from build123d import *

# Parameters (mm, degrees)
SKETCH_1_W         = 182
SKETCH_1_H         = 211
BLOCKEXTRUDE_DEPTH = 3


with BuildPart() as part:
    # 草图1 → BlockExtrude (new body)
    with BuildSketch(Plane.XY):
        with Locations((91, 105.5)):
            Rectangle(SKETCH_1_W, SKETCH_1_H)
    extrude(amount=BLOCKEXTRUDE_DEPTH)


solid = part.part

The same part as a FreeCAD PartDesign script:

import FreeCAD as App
import Part
import Sketcher

doc = App.newDocument("Part")
body = doc.addObject("PartDesign::Body", "Body")

sketch1 = body.newObject("Sketcher::SketchObject", "Sketch")
sketch1.AttachmentSupport = (doc.getObject("XY_Plane"), [""])
sketch1.MapMode = "FlatFace"
sketch1.addGeometry(Part.LineSegment(App.Vector(0, 211, 0), App.Vector(0, 0, 0)), False)
sketch1.addGeometry(Part.LineSegment(App.Vector(0, 0, 0), App.Vector(182, 0, 0)), False)
sketch1.addGeometry(Part.LineSegment(App.Vector(182, 0, 0), App.Vector(182, 211, 0)), False)
sketch1.addGeometry(Part.LineSegment(App.Vector(182, 211, 0), App.Vector(0, 211, 0)), False)
sketch1.addConstraint(Sketcher.Constraint("Coincident", 0, 2, 1, 1))
sketch1.addConstraint(Sketcher.Constraint("Coincident", 1, 2, 2, 1))
sketch1.addConstraint(Sketcher.Constraint("Coincident", 2, 2, 3, 1))
sketch1.addConstraint(Sketcher.Constraint("Coincident", 3, 2, 0, 1))
sketch1.addConstraint(Sketcher.Constraint("Vertical", 0))
sketch1.addConstraint(Sketcher.Constraint("Horizontal", 1))
sketch1.addConstraint(Sketcher.Constraint("Vertical", 2))
sketch1.addConstraint(Sketcher.Constraint("Horizontal", 3))
sketch1.addConstraint(Sketcher.Constraint("Coincident", 0, 2, -1, 1))
sketch1.addConstraint(Sketcher.Constraint("DistanceX", 1, 1, 1, 2, 182.0))
sketch1.addConstraint(Sketcher.Constraint("DistanceY", 0, 2, 0, 1, 211.0))
pad1 = body.newObject("PartDesign::Pad", "Pad")
pad1.Profile = sketch1
pad1.Length = 3

doc.recompute()
